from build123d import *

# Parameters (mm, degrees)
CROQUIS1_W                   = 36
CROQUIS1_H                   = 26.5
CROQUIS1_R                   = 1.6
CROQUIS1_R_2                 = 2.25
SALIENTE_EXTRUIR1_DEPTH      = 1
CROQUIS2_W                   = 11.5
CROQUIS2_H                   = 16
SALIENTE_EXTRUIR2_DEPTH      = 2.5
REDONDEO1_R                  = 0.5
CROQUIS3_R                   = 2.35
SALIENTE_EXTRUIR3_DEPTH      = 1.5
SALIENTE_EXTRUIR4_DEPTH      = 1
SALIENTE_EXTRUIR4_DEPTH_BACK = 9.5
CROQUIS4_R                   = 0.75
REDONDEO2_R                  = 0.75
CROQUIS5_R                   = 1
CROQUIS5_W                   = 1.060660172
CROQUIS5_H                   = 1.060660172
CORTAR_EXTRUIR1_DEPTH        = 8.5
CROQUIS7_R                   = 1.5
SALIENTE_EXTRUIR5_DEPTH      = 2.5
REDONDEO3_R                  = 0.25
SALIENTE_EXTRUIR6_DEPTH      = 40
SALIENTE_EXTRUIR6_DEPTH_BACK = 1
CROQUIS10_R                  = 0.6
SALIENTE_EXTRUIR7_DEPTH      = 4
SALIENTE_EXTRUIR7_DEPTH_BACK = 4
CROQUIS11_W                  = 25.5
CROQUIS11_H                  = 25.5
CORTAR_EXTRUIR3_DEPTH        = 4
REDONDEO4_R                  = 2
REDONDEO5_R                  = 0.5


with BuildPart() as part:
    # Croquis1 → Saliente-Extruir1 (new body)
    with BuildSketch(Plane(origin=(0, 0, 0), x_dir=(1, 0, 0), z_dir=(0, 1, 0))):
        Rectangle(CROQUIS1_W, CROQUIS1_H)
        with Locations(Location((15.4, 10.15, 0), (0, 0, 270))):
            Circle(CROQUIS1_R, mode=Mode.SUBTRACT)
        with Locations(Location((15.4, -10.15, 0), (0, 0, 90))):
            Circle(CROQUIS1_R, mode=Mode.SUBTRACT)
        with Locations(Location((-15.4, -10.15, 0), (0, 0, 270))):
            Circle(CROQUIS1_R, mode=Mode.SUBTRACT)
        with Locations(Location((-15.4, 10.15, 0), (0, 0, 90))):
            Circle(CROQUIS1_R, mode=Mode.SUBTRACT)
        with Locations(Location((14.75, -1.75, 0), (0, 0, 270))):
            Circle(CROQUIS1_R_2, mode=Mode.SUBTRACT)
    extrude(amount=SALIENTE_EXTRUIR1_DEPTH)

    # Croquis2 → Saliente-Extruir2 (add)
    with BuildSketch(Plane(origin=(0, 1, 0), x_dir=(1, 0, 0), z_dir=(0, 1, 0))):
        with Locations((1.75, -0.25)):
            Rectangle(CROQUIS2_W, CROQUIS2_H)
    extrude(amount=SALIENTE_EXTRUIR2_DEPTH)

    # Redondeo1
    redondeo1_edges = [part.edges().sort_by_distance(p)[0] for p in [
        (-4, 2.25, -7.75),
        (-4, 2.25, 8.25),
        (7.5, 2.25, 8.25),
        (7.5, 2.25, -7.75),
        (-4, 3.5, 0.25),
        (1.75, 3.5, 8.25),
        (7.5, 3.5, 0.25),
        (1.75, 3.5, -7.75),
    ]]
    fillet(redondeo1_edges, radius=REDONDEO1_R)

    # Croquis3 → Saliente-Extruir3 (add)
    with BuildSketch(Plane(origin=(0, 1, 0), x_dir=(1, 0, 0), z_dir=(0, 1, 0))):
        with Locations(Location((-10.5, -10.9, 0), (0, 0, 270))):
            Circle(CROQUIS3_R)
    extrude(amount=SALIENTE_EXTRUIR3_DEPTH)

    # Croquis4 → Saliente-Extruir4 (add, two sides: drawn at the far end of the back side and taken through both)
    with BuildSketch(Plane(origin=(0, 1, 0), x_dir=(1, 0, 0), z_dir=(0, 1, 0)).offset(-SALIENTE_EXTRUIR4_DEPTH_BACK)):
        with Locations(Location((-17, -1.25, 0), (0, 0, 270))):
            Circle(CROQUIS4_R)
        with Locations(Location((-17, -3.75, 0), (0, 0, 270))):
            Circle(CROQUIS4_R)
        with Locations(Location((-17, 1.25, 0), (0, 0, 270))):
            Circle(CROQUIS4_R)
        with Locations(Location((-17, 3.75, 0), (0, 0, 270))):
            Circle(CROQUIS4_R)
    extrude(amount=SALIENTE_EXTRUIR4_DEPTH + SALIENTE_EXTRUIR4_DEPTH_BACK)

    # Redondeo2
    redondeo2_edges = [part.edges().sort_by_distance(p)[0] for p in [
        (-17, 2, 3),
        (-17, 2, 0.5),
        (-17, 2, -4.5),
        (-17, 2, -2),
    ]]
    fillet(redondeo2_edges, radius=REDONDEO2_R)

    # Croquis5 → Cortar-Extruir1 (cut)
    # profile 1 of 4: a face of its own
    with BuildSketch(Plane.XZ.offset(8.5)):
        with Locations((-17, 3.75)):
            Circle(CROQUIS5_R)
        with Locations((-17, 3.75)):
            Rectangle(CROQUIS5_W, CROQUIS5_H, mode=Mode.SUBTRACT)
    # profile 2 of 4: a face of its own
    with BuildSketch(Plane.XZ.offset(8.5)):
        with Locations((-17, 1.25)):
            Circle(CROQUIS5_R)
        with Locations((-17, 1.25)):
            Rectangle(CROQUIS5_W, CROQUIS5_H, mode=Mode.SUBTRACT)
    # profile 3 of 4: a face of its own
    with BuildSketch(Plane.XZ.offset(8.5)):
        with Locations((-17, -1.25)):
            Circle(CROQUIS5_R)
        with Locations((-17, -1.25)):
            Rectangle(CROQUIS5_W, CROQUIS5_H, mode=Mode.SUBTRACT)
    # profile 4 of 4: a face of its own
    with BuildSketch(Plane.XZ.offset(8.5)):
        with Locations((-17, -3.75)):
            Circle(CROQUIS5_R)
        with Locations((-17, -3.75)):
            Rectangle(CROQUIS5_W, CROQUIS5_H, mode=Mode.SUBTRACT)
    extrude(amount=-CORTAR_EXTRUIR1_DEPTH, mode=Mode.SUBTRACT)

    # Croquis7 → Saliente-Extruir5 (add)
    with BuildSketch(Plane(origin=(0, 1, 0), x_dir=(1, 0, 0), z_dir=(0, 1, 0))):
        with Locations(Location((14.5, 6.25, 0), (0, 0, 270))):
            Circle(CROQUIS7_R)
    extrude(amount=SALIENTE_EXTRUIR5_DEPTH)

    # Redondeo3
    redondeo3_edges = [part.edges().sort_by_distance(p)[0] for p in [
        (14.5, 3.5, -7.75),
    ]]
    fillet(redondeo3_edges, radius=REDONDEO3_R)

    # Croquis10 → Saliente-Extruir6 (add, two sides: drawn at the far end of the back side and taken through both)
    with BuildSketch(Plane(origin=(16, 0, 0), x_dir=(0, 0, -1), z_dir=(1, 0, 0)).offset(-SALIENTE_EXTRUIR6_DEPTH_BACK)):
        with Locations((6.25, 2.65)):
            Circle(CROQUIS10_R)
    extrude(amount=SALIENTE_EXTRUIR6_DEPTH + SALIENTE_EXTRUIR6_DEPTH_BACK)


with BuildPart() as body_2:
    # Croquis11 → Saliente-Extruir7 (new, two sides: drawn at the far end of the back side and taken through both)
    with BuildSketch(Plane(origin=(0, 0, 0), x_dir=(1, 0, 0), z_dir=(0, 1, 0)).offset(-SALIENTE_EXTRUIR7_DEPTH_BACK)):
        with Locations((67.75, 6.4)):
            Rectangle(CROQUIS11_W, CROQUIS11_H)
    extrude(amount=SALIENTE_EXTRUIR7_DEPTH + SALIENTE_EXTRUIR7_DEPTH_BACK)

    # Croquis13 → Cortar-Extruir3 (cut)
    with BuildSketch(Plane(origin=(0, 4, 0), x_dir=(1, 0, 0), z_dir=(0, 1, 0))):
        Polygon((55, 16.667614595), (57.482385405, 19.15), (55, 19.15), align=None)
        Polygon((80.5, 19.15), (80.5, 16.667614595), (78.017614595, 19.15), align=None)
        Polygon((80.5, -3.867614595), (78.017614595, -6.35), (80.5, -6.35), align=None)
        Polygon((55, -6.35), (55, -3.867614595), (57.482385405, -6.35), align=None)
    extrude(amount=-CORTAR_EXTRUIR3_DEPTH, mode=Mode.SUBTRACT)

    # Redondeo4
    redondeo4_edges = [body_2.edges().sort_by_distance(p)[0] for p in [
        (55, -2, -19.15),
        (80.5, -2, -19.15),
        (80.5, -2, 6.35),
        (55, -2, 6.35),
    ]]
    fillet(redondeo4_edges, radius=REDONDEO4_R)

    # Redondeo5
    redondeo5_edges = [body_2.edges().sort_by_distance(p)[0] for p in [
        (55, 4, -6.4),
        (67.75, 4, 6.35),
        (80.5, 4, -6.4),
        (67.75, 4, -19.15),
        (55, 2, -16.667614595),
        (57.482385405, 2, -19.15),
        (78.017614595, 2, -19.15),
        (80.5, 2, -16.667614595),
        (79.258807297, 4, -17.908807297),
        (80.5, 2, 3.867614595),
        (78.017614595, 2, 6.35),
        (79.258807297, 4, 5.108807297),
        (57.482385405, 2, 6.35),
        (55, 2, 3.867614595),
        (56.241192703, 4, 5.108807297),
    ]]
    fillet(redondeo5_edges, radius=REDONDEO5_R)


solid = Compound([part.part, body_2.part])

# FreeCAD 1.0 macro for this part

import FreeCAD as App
import Part
import Sketcher

V = App.Vector
Q = App.Units.Quantity


def edges_at(feature, points):
    """Names of the edges that pass closest to the given points."""
    edges = feature.Shape.Edges
    near = lambda p: min(range(len(edges)), key=lambda i: edges[i].distToShape(Part.Vertex(*p))[0])
    return sorted({f"Edge{near(p) + 1}" for p in points})

doc = App.newDocument("Part")
body = doc.addObject("PartDesign::Body", "Body")

# Sketch on XZ plane
sketch1 = doc.addObject("Sketcher::SketchObject", "Sketch")
body.addObject(sketch1)
sketch1.AttachmentSupport = (doc.XZ_Plane, [""])
sketch1.MapMode = "FlatFace"
sketch1.addGeometry([
    Part.LineSegment(V(-18, -13.25, 0), V(-18, 13.25, 0)),  # 0
    Part.LineSegment(V(-18, 13.25, 0), V(18, 13.25, 0)),  # 1
    Part.LineSegment(V(18, 13.25, 0), V(18, -13.25, 0)),  # 2
    Part.LineSegment(V(18, -13.25, 0), V(-18, -13.25, 0)),  # 3
    Part.Circle(V(-15.4, 10.15, 0), V(0, 0, 1), 1.6),  # 4
    Part.Circle(V(15.4, 10.15, 0), V(0, 0, 1), 1.6),  # 5
    Part.Circle(V(14.75, 1.75, 0), V(0, 0, 1), 2.25),  # 6
    Part.Circle(V(-15.4, -10.15, 0), V(0, 0, 1), 1.6),  # 7
    Part.Circle(V(15.4, -10.15, 0), V(0, 0, 1), 1.6),  # 8
], False)
sketch1.addConstraint([
    Sketcher.Constraint("Coincident", 0, 2, 1, 1),
    Sketcher.Constraint("Coincident", 1, 2, 2, 1),
    Sketcher.Constraint("Coincident", 2, 2, 3, 1),
    Sketcher.Constraint("Coincident", 3, 2, 0, 1),
    Sketcher.Constraint("Vertical", 0),
    Sketcher.Constraint("Horizontal", 1),
    Sketcher.Constraint("Vertical", 2),
    Sketcher.Constraint("Horizontal", 3),
    Sketcher.Constraint("Equal", 4, 5),
    Sketcher.Constraint("Equal", 5, 7),
    Sketcher.Constraint("Equal", 7, 8),
    Sketcher.Constraint("Symmetric", 5, 3, 7, 3, -1, 1),
    Sketcher.Constraint("Symmetric", 4, 3, 8, 3, -1, 1),
    Sketcher.Constraint("Symmetric", 0, 2, 2, 2, -1, 1),
    Sketcher.Constraint("Symmetric", 4, 3, 5, 3, -2),
    Sketcher.Constraint("Diameter", 4, Q("3.2 mm")),
    Sketcher.Constraint("Diameter", 6, Q("4.5 mm")),
    Sketcher.Constraint("DistanceX", 1, 1, 1, 2, Q("36 mm")),
    Sketcher.Constraint("DistanceY", 0, 1, 0, 2, Q("26.5 mm")),
    Sketcher.Constraint("DistanceY", 2, 2, 6, 3, Q("15 mm")),
    Sketcher.Constraint("DistanceX", 4, 3, -1, 1, Q("15.4 mm")),
    Sketcher.Constraint("DistanceY", 6, 3, 5, 3, Q("8.4 mm")),
    Sketcher.Constraint("DistanceX", -1, 1, 6, 3, Q("14.75 mm")),
])
pad1 = doc.addObject("PartDesign::Pad", "Pad")
body.addObject(pad1)
pad1.Profile = sketch1
pad1.Length = 1
pad1.Reversed = True

# Sketch on XZ plane
sketch2 = doc.addObject("Sketcher::SketchObject", "Sketch001")
body.addObject(sketch2)
sketch2.AttachmentSupport = (doc.XZ_Plane, [""])
sketch2.MapMode = "FlatFace"
sketch2.AttachmentOffset = App.Placement(V(0, 0, -1), App.Rotation())
sketch2.addGeometry([
    Part.LineSegment(V(-4, -7.75, 0), V(-4, 8.25, 0)),
    Part.LineSegment(V(-4, 8.25, 0), V(7.5, 8.25, 0)),
    Part.LineSegment(V(7.5, 8.25, 0), V(7.5, -7.75, 0)),
    Part.LineSegment(V(7.5, -7.75, 0), V(-4, -7.75, 0)),
], False)
sketch2.addConstraint([
    Sketcher.Constraint("Coincident", 0, 2, 1, 1),
    Sketcher.Constraint("Coincident", 1, 2, 2, 1),
    Sketcher.Constraint("Coincident", 2, 2, 3, 1),
    Sketcher.Constraint("Coincident", 3, 2, 0, 1),
    Sketcher.Constraint("Vertical", 0),
    Sketcher.Constraint("Horizontal", 1),
    Sketcher.Constraint("Vertical", 2),
    Sketcher.Constraint("Horizontal", 3),
    Sketcher.Constraint("DistanceY", 0, 1, 0, 2, Q("16 mm")),
    Sketcher.Constraint("DistanceX", 1, 1, 1, 2, Q("11.5 mm")),
    Sketcher.Constraint("DistanceX", 0, 2, -1, 1, Q("4 mm")),
    Sketcher.Constraint("DistanceY", -1, 1, 0, 2, Q("8.25 mm")),
])
pad2 = doc.addObject("PartDesign::Pad", "Pad001")
body.addObject(pad2)
pad2.Profile = sketch2
pad2.Length = 2.5
pad2.Reversed = True
doc.recompute()

fillet = doc.addObject("PartDesign::Fillet", "Fillet")
body.addObject(fillet)
fillet.Base = (pad2, edges_at(pad2, [
    (-4, 2.25, -7.75),
    (-4, 2.25, 8.25),
    (7.5, 2.25, 8.25),
    (7.5, 2.25, -7.75),
    (-4, 3.5, 0.25),
    (1.75, 3.5, 8.25),
    (7.5, 3.5, 0.25),
    (1.75, 3.5, -7.75),
]))
fillet.Radius = 0.5

# Sketch on XZ plane
sketch3 = doc.addObject("Sketcher::SketchObject", "Sketch002")
body.addObject(sketch3)
sketch3.AttachmentSupport = (doc.XZ_Plane, [""])
sketch3.MapMode = "FlatFace"
sketch3.AttachmentOffset = App.Placement(V(0, 0, -1), App.Rotation())
sketch3.addGeometry(Part.Circle(V(-10.5, 10.9, 0), V(0, 0, 1), 2.35), False)
sketch3.addConstraint([
    Sketcher.Constraint("Diameter", 0, Q("4.7 mm")),
    Sketcher.Constraint("DistanceX", 0, 3, -1, 1, Q("10.5 mm")),
    Sketcher.Constraint("DistanceY", -1, 1, 0, 3, Q("10.9 mm")),
])
pad3 = doc.addObject("PartDesign::Pad", "Pad002")
body.addObject(pad3)
pad3.Profile = sketch3
pad3.Length = 1.5
pad3.Reversed = True

# Sketch on XZ plane
sketch4 = doc.addObject("Sketcher::SketchObject", "Sketch003")
body.addObject(sketch4)
sketch4.AttachmentSupport = (doc.XZ_Plane, [""])
sketch4.MapMode = "FlatFace"
sketch4.AttachmentOffset = App.Placement(V(0, 0, -1), App.Rotation())
sketch4.addGeometry([
    Part.Circle(V(-17, 1.25, 0), V(0, 0, 1), 0.75),
    Part.Circle(V(-17, 3.75, 0), V(0, 0, 1), 0.75),
    Part.Circle(V(-17, -1.25, 0), V(0, 0, 1), 0.75),
    Part.Circle(V(-17, -3.75, 0), V(0, 0, 1), 0.75),
], False)
sketch4.addConstraint([
    Sketcher.Constraint("Equal", 0, 1),
    Sketcher.Constraint("Equal", 1, 2),
    Sketcher.Constraint("Equal", 2, 3),
    Sketcher.Constraint("Symmetric", 0, 3, 2, 3, -1),
    Sketcher.Constraint("Symmetric", 1, 3, 3, 3, -1),
    Sketcher.Constraint("Vertical", 0, 3, 1, 3),
    Sketcher.Constraint("Diameter", 0, Q("1.5 mm")),
    Sketcher.Constraint("DistanceX", 0, 3, -1, 1, Q("17 mm")),
    Sketcher.Constraint("DistanceY", 2, 3, 1, 3, Q("5 mm")),
    Sketcher.Constraint("DistanceY", 0, 3, 1, 3, Q("2.5 mm")),
])
pad4 = doc.addObject("PartDesign::Pad", "Pad003")
body.addObject(pad4)
pad4.Profile = sketch4
pad4.Type = "TwoLengths"
pad4.Length = 1
pad4.Length2 = 9.5
pad4.Reversed = True
doc.recompute()

fillet2 = doc.addObject("PartDesign::Fillet", "Fillet001")
body.addObject(fillet2)
fillet2.Base = (pad4, edges_at(pad4, [
    (-17, 2, 3),
    (-17, 2, 0.5),
    (-17, 2, -4.5),
    (-17, 2, -2),
]))
fillet2.Radius = 0.75

# Sketch on XZ plane
sketch5 = doc.addObject("Sketcher::SketchObject", "Sketch004")
body.addObject(sketch5)
sketch5.AttachmentSupport = (doc.XZ_Plane, [""])
sketch5.MapMode = "FlatFace"
sketch5.AttachmentOffset = App.Placement(V(0, 0, 8.5), App.Rotation())
sketch5.addGeometry([
    Part.Circle(V(-17, 3.75, 0), V(0, 0, 1), 1),  # 0
    Part.LineSegment(V(-16.46967, 3.21967, 0), V(-17.53033, 3.21967, 0)),  # 1
    Part.LineSegment(V(-17.53033, 3.21967, 0), V(-17.53033, 4.28033, 0)),  # 2
    Part.LineSegment(V(-17.53033, 4.28033, 0), V(-16.46967, 4.28033, 0)),  # 3
    Part.LineSegment(V(-16.46967, 4.28033, 0), V(-16.46967, 3.21967, 0)),  # 4
    Part.Circle(V(-17, 1.25, 0), V(0, 0, 1), 1),  # 5
    Part.LineSegment(V(-16.46967, 0.71967, 0), V(-17.53033, 0.71967, 0)),  # 6
    Part.LineSegment(V(-17.53033, 0.71967, 0), V(-17.53033, 1.78033, 0)),  # 7
    Part.LineSegment(V(-17.53033, 1.78033, 0), V(-16.46967, 1.78033, 0)),  # 8
    Part.LineSegment(V(-16.46967, 1.78033, 0), V(-16.46967, 0.71967, 0)),  # 9
    Part.Circle(V(-17, -1.25, 0), V(0, 0, 1), 1),  # 10
    Part.LineSegment(V(-16.46967, -1.78033, 0), V(-17.53033, -1.78033, 0)),  # 11
    Part.LineSegment(V(-17.53033, -1.78033, 0), V(-17.53033, -0.71967, 0)),  # 12
    Part.LineSegment(V(-17.53033, -0.71967, 0), V(-16.46967, -0.71967, 0)),  # 13
    Part.LineSegment(V(-16.46967, -0.71967, 0), V(-16.46967, -1.78033, 0)),  # 14
    Part.Circle(V(-17, -3.75, 0), V(0, 0, 1), 1),  # 15
    Part.LineSegment(V(-16.46967, -4.28033, 0), V(-17.53033, -4.28033, 0)),  # 16
    Part.LineSegment(V(-17.53033, -4.28033, 0), V(-17.53033, -3.21967, 0)),  # 17
    Part.LineSegment(V(-17.53033, -3.21967, 0), V(-16.46967, -3.21967, 0)),  # 18
    Part.LineSegment(V(-16.46967, -3.21967, 0), V(-16.46967, -4.28033, 0)),  # 19
], False)
sketch5.addConstraint([
    Sketcher.Constraint("Coincident", 1, 2, 2, 1),
    Sketcher.Constraint("Coincident", 2, 2, 3, 1),
    Sketcher.Constraint("Coincident", 3, 2, 4, 1),
    Sketcher.Constraint("Coincident", 4, 2, 1, 1),
    Sketcher.Constraint("Coincident", 6, 2, 7, 1),
    Sketcher.Constraint("Coincident", 7, 2, 8, 1),
    Sketcher.Constraint("Coincident", 8, 2, 9, 1),
    Sketcher.Constraint("Coincident", 9, 2, 6, 1),
    Sketcher.Constraint("Coincident", 11, 2, 12, 1),
    Sketcher.Constraint("Coincident", 12, 2, 13, 1),
    Sketcher.Constraint("Coincident", 13, 2, 14, 1),
    Sketcher.Constraint("Coincident", 14, 2, 11, 1),
    Sketcher.Constraint("Coincident", 16, 2, 17, 1),
    Sketcher.Constraint("Coincident", 17, 2, 18, 1),
    Sketcher.Constraint("Coincident", 18, 2, 19, 1),
    Sketcher.Constraint("Coincident", 19, 2, 16, 1),
    Sketcher.Constraint("Horizontal", 1),
    Sketcher.Constraint("Vertical", 2),
    Sketcher.Constraint("Horizontal", 3),
    Sketcher.Constraint("Vertical", 4),
    Sketcher.Constraint("Horizontal", 6),
    Sketcher.Constraint("Vertical", 7),
    Sketcher.Constraint("Horizontal", 8),
    Sketcher.Constraint("Vertical", 9),
    Sketcher.Constraint("Horizontal", 11),
    Sketcher.Constraint("Vertical", 12),
    Sketcher.Constraint("Horizontal", 13),
    Sketcher.Constraint("Vertical", 14),
    Sketcher.Constraint("Horizontal", 16),
    Sketcher.Constraint("Vertical", 17),
    Sketcher.Constraint("Horizontal", 18),
    Sketcher.Constraint("Vertical", 19),
    Sketcher.Constraint("Equal", 0, 5),
    Sketcher.Constraint("Equal", 5, 10),
    Sketcher.Constraint("Equal", 10, 15),
    Sketcher.Constraint("Symmetric", 5, 3, 10, 3, -1),
    Sketcher.Constraint("Symmetric", 0, 3, 15, 3, -1),
    Sketcher.Constraint("Symmetric", 7, 2, 11, 2, -1),
    Sketcher.Constraint("Symmetric", 9, 2, 13, 2, -1),
    Sketcher.Constraint("Symmetric", 2, 2, 16, 2, -1),
    Sketcher.Constraint("Symmetric", 4, 2, 18, 2, -1),
    Sketcher.Constraint("Vertical", 0, 3, 5, 3),
    Sketcher.Constraint("Vertical", 2, 2, 6, 2),
    Sketcher.Constraint("Vertical", 4, 2, 8, 2),
    Sketcher.Constraint("Equal", 18, 2),
    Sketcher.Constraint("Equal", 4, 7),
    Sketcher.Constraint("Diameter", 0, Q("2 mm")),
    Sketcher.Constraint("DistanceX", 0, 3, -1, 1, Q("17 mm")),
    Sketcher.Constraint("DistanceY", 10, 3, 0, 3, Q("5 mm")),
    Sketcher.Constraint("DistanceY", 5, 3, 0, 3, Q("2.5 mm")),
    Sketcher.Constraint("DistanceY", 6, 2, 1, 2, Q("2.5 mm")),
    Sketcher.Constraint("DistanceY", 11, 2, 6, 2, Q("2.5 mm")),
    Sketcher.Constraint("DistanceX", 1, 2, 1, 1, Q("1.06066 mm")),
    Sketcher.Constraint("DistanceX", 1, 2, -1, 1, Q("17.53033 mm")),
])
pocket1 = doc.addObject("PartDesign::Pocket", "Pocket")
body.addObject(pocket1)
pocket1.Profile = sketch5
pocket1.Length = 8.5

# Sketch on XZ plane
sketch6 = doc.addObject("Sketcher::SketchObject", "Sketch005")
body.addObject(sketch6)
sketch6.AttachmentSupport = (doc.XZ_Plane, [""])
sketch6.MapMode = "FlatFace"
sketch6.AttachmentOffset = App.Placement(V(0, 0, -1), App.Rotation())
sketch6.addGeometry(Part.Circle(V(14.5, -6.25, 0), V(0, 0, 1), 1.5), False)
sketch6.addConstraint([
    Sketcher.Constraint("Diameter", 0, Q("3 mm")),
    Sketcher.Constraint("DistanceX", -1, 1, 0, 3, Q("14.5 mm")),
    Sketcher.Constraint("DistanceY", 0, 3, -1, 1, Q("6.25 mm")),
])
pad5 = doc.addObject("PartDesign::Pad", "Pad004")
body.addObject(pad5)
pad5.Profile = sketch6
pad5.Length = 2.5
pad5.Reversed = True
doc.recompute()

fillet3 = doc.addObject("PartDesign::Fillet", "Fillet002")
body.addObject(fillet3)
fillet3.Base = (pad5, edges_at(pad5, [(14.5, 3.5, -7.75)]))
fillet3.Radius = 0.25

# Sketch on YZ plane
sketch7 = doc.addObject("Sketcher::SketchObject", "Sketch006")
body.addObject(sketch7)
sketch7.AttachmentSupport = (doc.YZ_Plane, [""])
sketch7.MapMode = "FlatFace"
sketch7.AttachmentOffset = App.Placement(V(0, 0, 16), App.Rotation())
sketch7.addGeometry(Part.Circle(V(2.65, -6.25, 0), V(0, 0, 1), 0.6), False)
sketch7.addConstraint([
    Sketcher.Constraint("Diameter", 0, Q("1.2 mm")),
    Sketcher.Constraint("DistanceX", -1, 1, 0, 3, Q("2.65 mm")),
    Sketcher.Constraint("DistanceY", 0, 3, -1, 1, Q("6.25 mm")),
])
pad6 = doc.addObject("PartDesign::Pad", "Pad005")
body.addObject(pad6)
pad6.Profile = sketch7
pad6.Type = "TwoLengths"
pad6.Length = 40
pad6.Length2 = 1
body2 = doc.addObject("PartDesign::Body", "Body001")

# Sketch on XZ plane
sketch8 = doc.addObject("Sketcher::SketchObject", "Sketch007")
body2.addObject(sketch8)
sketch8.AttachmentSupport = (doc.getObject("XZ_Plane001"), [""])
sketch8.MapMode = "FlatFace"
sketch8.addGeometry([
    Part.LineSegment(V(55, -19.15, 0), V(55, 6.35, 0)),
    Part.LineSegment(V(55, 6.35, 0), V(80.5, 6.35, 0)),
    Part.LineSegment(V(80.5, 6.35, 0), V(80.5, -19.15, 0)),
    Part.LineSegment(V(80.5, -19.15, 0), V(55, -19.15, 0)),
], False)
sketch8.addConstraint([
    Sketcher.Constraint("Coincident", 0, 2, 1, 1),
    Sketcher.Constraint("Coincident", 1, 2, 2, 1),
    Sketcher.Constraint("Coincident", 2, 2, 3, 1),
    Sketcher.Constraint("Coincident", 3, 2, 0, 1),
    Sketcher.Constraint("Vertical", 0),
    Sketcher.Constraint("Horizontal", 1),
    Sketcher.Constraint("Vertical", 2),
    Sketcher.Constraint("Horizontal", 3),
    Sketcher.Constraint("Equal", 3, 0),
    Sketcher.Constraint("DistanceX", 1, 1, 1, 2, Q("25.5 mm")),
    Sketcher.Constraint("DistanceX", -1, 1, 0, 2, Q("55 mm")),
    Sketcher.Constraint("DistanceY", -1, 1, 0, 2, Q("6.35 mm")),
])
pad7 = doc.addObject("PartDesign::Pad", "Pad006")
body2.addObject(pad7)
pad7.Profile = sketch8
pad7.Type = "TwoLengths"
pad7.Length = 4
pad7.Length2 = 4
pad7.Reversed = True

# Sketch on XZ plane
sketch9 = doc.addObject("Sketcher::SketchObject", "Sketch008")
body2.addObject(sketch9)
sketch9.AttachmentSupport = (doc.getObject("XZ_Plane001"), [""])
sketch9.MapMode = "FlatFace"
sketch9.AttachmentOffset = App.Placement(V(0, 0, -4), App.Rotation())
sketch9.addGeometry([
    Part.LineSegment(V(55, -16.667615, 0), V(57.482385, -19.15, 0)),  # 0
    Part.LineSegment(V(57.482385, -19.15, 0), V(55, -19.15, 0)),  # 1
    Part.LineSegment(V(55, -19.15, 0), V(55, -16.667615, 0)),  # 2
    Part.LineSegment(V(80.5, -16.667615, 0), V(80.5, -19.15, 0)),  # 3
    Part.LineSegment(V(80.5, -19.15, 0), V(78.017615, -19.15, 0)),  # 4
    Part.LineSegment(V(78.017615, -19.15, 0), V(80.5, -16.667615, 0)),  # 5
    Part.LineSegment(V(80.5, 3.867615, 0), V(78.017615, 6.35, 0)),  # 6
    Part.LineSegment(V(78.017615, 6.35, 0), V(80.5, 6.35, 0)),  # 7
    Part.LineSegment(V(80.5, 6.35, 0), V(80.5, 3.867615, 0)),  # 8
    Part.LineSegment(V(55, 3.867615, 0), V(55, 6.35, 0)),  # 9
    Part.LineSegment(V(55, 6.35, 0), V(57.482385, 6.35, 0)),  # 10
    Part.LineSegment(V(57.482385, 6.35, 0), V(55, 3.867615, 0)),  # 11
], False)
sketch9.addConstraint([
    Sketcher.Constraint("Coincident", 0, 2, 1, 1),
    Sketcher.Constraint("Coincident", 1, 2, 2, 1),
    Sketcher.Constraint("Coincident", 2, 2, 0, 1),
    Sketcher.Constraint("Coincident", 3, 2, 4, 1),
    Sketcher.Constraint("Coincident", 4, 2, 5, 1),
    Sketcher.Constraint("Coincident", 5, 2, 3, 1),
    Sketcher.Constraint("Coincident", 6, 2, 7, 1),
    Sketcher.Constraint("Coincident", 7, 2, 8, 1),
    Sketcher.Constraint("Coincident", 8, 2, 6, 1),
    Sketcher.Constraint("Coincident", 9, 2, 10, 1),
    Sketcher.Constraint("Coincident", 10, 2, 11, 1),
    Sketcher.Constraint("Coincident", 11, 2, 9, 1),
    Sketcher.Constraint("Horizontal", 1),
    Sketcher.Constraint("Vertical", 2),
    Sketcher.Constraint("Vertical", 3),
    Sketcher.Constraint("Horizontal", 4),
    Sketcher.Constraint("Horizontal", 7),
    Sketcher.Constraint("Vertical", 8),
    Sketcher.Constraint("Vertical", 9),
    Sketcher.Constraint("Horizontal", 10),
    Sketcher.Constraint("Perpendicular", 0, 5),
    Sketcher.Constraint("Perpendicular", 5, 6),
    Sketcher.Constraint("Perpendicular", 6, 11),
    Sketcher.Constraint("Horizontal", 1, 2, 3, 2),
    Sketcher.Constraint("Horizontal", 2, 2, 5, 2),
    Sketcher.Constraint("Horizontal", 7, 2, 9, 2),
    Sketcher.Constraint("Horizontal", 8, 2, 11, 2),
    Sketcher.Constraint("Vertical", 4, 2, 6, 2),
    Sketcher.Constraint("Vertical", 5, 2, 7, 2),
    Sketcher.Constraint("Vertical", 2, 2, 9, 2),
    Sketcher.Constraint("Vertical", 0, 2, 10, 2),
    Sketcher.Constraint("DistanceX", -1, 1, 1, 2, Q("55 mm")),
    Sketcher.Constraint("DistanceX", -1, 1, 3, 2, Q("80.5 mm")),
    Sketcher.Constraint("DistanceY", 4, 2, 6, 2, Q("25.5 mm")),
    Sketcher.Constraint("DistanceY", 0, 2, -1, 1, Q("19.15 mm")),
    Sketcher.Constraint("DistanceX", 1, 2, 1, 1, Q("2.482385 mm")),
])
pocket2 = doc.addObject("PartDesign::Pocket", "Pocket001")
body2.addObject(pocket2)
pocket2.Profile = sketch9
pocket2.Length = 4
pocket2.Reversed = True
doc.recompute()

fillet4 = doc.addObject("PartDesign::Fillet", "Fillet003")
body2.addObject(fillet4)
fillet4.Base = (pocket2, edges_at(pocket2, [
    (55, -2, -19.15),
    (80.5, -2, -19.15),
    (80.5, -2, 6.35),
    (55, -2, 6.35),
]))
fillet4.Radius = 2
doc.recompute()

fillet5 = doc.addObject("PartDesign::Fillet", "Fillet004")
body2.addObject(fillet5)
fillet5.Base = (fillet4, edges_at(fillet4, [
    (55, 4, -6.4),
    (67.75, 4, 6.35),
    (80.5, 4, -6.4),
    (67.75, 4, -19.15),
    (55, 2, -16.668),
    (57.482, 2, -19.15),
    (78.018, 2, -19.15),
    (80.5, 2, -16.668),
    (79.259, 4, -17.909),
    (80.5, 2, 3.868),
    (78.018, 2, 6.35),
    (79.259, 4, 5.109),
    (57.482, 2, 6.35),
    (55, 2, 3.868),
    (56.241, 4, 5.109),
]))
fillet5.Radius = 0.5

doc.recompute()
